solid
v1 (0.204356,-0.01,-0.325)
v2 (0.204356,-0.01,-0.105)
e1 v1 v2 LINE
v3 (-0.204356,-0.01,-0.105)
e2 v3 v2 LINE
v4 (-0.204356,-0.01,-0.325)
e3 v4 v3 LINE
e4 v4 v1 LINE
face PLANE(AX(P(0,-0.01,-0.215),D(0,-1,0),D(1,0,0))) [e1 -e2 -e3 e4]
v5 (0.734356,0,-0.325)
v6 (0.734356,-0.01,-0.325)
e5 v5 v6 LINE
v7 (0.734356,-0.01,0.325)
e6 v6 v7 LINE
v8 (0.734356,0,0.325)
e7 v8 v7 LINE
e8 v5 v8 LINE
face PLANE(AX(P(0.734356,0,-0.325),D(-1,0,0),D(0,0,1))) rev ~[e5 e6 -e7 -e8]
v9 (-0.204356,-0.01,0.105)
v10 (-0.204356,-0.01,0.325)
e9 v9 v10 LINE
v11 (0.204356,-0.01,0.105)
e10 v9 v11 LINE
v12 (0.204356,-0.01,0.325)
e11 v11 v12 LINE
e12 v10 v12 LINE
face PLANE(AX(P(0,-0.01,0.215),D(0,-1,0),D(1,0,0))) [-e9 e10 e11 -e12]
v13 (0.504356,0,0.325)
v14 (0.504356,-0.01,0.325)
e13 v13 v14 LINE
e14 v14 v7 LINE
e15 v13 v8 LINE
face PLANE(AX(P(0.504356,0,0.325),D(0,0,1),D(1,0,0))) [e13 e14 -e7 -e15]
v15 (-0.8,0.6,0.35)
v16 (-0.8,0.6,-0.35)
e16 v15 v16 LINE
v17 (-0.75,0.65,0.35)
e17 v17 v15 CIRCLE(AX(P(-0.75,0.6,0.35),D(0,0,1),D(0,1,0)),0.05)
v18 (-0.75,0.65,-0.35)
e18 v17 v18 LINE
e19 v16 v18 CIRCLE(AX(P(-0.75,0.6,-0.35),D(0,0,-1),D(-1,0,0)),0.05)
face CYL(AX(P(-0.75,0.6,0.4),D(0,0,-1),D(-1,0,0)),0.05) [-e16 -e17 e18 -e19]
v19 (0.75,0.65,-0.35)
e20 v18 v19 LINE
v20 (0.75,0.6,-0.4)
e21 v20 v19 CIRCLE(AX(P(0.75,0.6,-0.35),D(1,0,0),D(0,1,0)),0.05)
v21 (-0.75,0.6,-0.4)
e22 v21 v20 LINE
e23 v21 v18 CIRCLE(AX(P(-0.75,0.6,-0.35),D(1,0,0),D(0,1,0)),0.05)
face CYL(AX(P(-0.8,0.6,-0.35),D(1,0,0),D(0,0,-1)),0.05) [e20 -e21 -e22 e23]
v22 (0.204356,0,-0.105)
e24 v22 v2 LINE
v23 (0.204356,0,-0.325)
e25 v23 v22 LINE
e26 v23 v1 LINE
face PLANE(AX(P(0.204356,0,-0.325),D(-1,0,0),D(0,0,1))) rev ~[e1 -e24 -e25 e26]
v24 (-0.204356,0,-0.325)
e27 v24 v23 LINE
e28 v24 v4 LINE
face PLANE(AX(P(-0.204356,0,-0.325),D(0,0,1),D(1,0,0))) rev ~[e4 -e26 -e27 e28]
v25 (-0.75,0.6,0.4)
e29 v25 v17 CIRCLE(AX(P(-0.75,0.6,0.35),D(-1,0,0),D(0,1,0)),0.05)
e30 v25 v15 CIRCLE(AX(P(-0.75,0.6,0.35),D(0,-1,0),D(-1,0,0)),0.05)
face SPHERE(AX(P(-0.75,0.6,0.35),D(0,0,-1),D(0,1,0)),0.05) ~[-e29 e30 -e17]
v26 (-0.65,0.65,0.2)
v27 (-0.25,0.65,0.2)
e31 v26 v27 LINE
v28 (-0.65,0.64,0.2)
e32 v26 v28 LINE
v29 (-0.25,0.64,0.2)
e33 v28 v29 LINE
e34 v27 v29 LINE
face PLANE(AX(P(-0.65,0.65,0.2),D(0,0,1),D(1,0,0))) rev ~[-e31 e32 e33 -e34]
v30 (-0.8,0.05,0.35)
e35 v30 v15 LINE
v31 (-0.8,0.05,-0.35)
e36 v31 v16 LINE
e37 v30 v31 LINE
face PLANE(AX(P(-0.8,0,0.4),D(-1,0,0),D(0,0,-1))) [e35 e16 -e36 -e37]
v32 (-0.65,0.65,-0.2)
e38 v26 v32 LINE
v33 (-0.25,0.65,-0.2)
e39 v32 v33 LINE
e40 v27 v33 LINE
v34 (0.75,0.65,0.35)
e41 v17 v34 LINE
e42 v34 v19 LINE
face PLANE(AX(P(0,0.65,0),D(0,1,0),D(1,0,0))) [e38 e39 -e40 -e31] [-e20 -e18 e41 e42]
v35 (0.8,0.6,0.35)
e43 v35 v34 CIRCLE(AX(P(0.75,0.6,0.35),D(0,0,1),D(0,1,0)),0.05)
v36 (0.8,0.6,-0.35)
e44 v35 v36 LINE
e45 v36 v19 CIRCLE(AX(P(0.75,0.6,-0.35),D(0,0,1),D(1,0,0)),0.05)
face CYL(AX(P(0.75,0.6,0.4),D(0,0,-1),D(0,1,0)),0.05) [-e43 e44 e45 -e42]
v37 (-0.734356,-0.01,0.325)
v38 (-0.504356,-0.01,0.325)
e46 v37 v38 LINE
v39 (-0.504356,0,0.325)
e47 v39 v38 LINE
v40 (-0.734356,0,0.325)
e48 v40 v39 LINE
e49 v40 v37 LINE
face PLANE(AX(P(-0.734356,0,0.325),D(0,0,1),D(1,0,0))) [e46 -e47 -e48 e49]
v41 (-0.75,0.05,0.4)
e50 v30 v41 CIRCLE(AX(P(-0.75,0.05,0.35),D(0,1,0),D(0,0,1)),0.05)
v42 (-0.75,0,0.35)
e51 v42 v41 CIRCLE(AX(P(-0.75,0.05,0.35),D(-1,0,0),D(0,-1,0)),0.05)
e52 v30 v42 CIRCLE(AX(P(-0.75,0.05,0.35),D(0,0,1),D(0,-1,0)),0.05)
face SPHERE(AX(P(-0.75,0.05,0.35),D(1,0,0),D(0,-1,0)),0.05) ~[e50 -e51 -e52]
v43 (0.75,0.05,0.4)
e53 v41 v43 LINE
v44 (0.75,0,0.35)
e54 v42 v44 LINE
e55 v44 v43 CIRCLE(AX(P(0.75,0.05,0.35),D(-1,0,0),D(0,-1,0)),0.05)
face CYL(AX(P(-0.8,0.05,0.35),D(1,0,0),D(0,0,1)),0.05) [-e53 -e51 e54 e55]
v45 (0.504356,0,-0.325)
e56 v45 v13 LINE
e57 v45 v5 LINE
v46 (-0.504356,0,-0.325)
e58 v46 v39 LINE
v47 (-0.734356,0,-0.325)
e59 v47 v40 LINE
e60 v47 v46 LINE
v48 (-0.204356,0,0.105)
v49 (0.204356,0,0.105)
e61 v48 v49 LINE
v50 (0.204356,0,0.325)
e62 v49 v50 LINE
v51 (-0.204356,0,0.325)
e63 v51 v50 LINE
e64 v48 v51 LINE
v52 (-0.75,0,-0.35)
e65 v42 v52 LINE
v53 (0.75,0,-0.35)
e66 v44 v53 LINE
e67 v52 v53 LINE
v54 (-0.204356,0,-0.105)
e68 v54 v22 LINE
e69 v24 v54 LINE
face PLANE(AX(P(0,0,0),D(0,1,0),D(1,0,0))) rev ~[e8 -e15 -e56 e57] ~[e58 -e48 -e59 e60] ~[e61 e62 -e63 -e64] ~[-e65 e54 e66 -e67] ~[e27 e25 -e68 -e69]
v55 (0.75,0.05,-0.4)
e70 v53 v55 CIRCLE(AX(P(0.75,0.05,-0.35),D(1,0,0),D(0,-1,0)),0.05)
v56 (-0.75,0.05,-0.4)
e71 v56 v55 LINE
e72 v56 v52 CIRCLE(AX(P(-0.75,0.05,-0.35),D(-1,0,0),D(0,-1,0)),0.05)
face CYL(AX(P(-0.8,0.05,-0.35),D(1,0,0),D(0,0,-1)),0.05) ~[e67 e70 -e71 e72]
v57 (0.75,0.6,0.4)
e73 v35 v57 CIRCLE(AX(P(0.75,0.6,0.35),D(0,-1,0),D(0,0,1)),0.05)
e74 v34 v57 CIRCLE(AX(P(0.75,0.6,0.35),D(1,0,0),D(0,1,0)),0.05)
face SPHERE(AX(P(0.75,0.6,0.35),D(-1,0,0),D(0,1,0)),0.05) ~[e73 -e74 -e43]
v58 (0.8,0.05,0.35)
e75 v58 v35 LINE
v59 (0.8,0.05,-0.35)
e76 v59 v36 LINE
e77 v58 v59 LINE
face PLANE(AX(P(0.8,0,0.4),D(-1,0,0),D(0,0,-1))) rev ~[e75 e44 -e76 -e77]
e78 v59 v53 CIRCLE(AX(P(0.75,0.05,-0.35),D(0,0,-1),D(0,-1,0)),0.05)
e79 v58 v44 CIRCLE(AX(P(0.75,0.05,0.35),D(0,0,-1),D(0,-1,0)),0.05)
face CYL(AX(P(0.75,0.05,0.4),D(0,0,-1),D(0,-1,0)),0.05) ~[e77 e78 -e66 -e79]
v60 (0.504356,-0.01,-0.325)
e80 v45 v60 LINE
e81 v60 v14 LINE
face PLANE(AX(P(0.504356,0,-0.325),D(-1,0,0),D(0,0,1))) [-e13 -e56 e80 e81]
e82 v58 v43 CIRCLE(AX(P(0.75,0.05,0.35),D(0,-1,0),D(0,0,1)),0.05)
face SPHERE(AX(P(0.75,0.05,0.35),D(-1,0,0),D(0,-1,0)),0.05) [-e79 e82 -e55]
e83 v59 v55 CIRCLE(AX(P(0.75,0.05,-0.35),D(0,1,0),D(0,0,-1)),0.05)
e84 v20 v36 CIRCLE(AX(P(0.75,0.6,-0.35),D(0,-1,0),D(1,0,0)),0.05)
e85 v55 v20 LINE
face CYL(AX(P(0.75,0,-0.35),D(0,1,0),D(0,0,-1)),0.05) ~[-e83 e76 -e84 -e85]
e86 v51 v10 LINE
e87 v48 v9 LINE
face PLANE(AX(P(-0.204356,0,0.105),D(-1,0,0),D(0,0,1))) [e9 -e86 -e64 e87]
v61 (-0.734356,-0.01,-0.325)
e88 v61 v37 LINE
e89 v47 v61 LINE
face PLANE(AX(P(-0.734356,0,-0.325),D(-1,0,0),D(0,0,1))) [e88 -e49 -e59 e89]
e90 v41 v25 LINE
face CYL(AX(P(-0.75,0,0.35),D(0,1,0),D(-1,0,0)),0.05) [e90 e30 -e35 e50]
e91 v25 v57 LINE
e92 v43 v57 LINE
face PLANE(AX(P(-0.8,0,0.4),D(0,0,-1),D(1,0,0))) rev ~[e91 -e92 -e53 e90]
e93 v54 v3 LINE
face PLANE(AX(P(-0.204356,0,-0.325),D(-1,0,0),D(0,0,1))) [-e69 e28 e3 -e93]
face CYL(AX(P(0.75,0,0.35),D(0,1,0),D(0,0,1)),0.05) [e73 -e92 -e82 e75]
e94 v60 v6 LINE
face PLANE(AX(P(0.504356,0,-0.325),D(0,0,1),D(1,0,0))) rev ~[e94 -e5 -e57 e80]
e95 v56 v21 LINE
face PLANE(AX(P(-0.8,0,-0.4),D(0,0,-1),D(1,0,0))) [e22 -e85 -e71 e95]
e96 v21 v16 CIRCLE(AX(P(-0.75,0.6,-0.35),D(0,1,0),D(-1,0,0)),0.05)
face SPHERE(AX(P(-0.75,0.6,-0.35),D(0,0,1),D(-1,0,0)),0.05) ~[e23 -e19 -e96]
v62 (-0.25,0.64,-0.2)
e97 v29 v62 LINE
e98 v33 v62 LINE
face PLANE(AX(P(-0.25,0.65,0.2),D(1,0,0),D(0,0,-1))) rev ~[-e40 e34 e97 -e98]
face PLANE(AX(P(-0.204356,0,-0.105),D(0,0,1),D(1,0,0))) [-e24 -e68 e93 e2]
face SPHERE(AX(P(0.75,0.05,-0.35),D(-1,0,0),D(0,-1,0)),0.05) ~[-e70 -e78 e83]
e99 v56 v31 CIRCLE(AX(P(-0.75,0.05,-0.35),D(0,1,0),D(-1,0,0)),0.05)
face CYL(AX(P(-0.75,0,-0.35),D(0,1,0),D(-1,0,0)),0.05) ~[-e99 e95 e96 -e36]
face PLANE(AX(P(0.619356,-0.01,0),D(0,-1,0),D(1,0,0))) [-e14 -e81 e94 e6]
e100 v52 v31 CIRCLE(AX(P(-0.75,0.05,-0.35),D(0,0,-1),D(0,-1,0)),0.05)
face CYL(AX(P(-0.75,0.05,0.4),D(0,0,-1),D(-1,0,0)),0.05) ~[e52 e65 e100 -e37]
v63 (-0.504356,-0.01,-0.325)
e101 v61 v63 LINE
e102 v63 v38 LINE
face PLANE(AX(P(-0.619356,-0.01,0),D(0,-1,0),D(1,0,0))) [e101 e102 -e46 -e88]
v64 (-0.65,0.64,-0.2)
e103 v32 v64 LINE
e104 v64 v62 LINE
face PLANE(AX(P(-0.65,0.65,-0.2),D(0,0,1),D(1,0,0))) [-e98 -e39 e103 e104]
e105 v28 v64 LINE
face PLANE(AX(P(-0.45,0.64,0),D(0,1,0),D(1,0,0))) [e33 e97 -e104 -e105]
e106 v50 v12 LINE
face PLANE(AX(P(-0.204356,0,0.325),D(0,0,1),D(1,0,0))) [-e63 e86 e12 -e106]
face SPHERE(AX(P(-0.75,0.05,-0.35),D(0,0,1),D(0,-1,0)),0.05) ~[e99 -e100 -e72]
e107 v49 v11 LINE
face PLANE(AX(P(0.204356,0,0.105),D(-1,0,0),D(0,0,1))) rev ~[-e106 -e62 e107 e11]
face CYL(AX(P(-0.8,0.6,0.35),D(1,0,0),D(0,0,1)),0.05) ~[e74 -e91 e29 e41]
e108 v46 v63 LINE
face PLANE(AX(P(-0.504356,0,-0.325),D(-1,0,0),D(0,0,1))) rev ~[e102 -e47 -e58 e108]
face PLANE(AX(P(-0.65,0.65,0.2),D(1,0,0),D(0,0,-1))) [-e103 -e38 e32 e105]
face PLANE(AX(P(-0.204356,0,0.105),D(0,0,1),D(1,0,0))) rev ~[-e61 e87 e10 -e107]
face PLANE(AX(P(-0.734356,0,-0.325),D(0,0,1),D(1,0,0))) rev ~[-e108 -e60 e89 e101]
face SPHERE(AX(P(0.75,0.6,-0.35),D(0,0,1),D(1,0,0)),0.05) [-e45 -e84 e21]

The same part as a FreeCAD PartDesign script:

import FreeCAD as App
import Part
import Sketcher
Q = App.Units.Quantity


def edges_at(feature, points):
    """Names of the edges that pass closest to the given points."""
    edges = feature.Shape.Edges
    near = lambda p: min(range(len(edges)), key=lambda i: edges[i].distToShape(Part.Vertex(*p))[0])
    return sorted({f"Edge{near(p) + 1}" for p in points})


def add_polygon(sketch, points):
    """Adds a closed chain of lines whose ends are joined by coincident constraints."""
    first, n = sketch.GeometryCount, len(points)
    for a, b in zip(points, points[1:] + points[:1]):
        sketch.addGeometry(Part.LineSegment(App.Vector(*a, 0), App.Vector(*b, 0)), False)
    for i in range(n):
        sketch.addConstraint(Sketcher.Constraint("Coincident", first + i, 2, first + (i + 1) % n, 1))

doc = App.newDocument("Part")
body = doc.addObject("PartDesign::Body", "Body")

# Sketch on XZ plane
sketch1 = body.newObject("Sketcher::SketchObject", "Sketch")
sketch1.AttachmentSupport = (doc.getObject("XZ_Plane"), [""])
sketch1.MapMode = "FlatFace"
add_polygon(sketch1, [(-0.8, -0.4), (-0.8, 0.4), (0.8, 0.4), (0.8, -0.4)])  # lines 0-3
sketch1.addConstraint([
    Sketcher.Constraint("Vertical", 0),
    Sketcher.Constraint("Horizontal", 1),
    Sketcher.Constraint("Vertical", 2),
    Sketcher.Constraint("Horizontal", 3),
    Sketcher.Constraint("Symmetric", 0, 2, 2, 2, -1, 1),
    Sketcher.Constraint("DistanceX", 1, 1, 1, 2, Q("1.6 mm")),
    Sketcher.Constraint("DistanceY", 0, 1, 0, 2, Q("0.8 mm")),
])
pad1 = body.newObject("PartDesign::Pad", "Pad")
pad1.Profile = sketch1
pad1.Length = 0.65
pad1.Reversed = True

# Sketch on XZ plane
sketch2 = body.newObject("Sketcher::SketchObject", "Sketch001")
sketch2.AttachmentSupport = (doc.getObject("XZ_Plane"), [""])
sketch2.MapMode = "FlatFace"
add_polygon(sketch2, [(-0.734356, 0.325), (-0.734356, -0.325), (-0.504356, -0.325), (-0.504356, 0.325)])  # lines 0-3
add_polygon(sketch2, [(0.504356, 0.325), (0.504356, -0.325), (0.734356, -0.325), (0.734356, 0.325)])  # lines 4-7
add_polygon(sketch2, [(-0.204356, -0.105), (-0.204356, -0.325), (0.204356, -0.325), (0.204356, -0.105)])  # lines 8-11
add_polygon(sketch2, [(-0.204356, 0.325), (-0.204356, 0.105), (0.204356, 0.105), (0.204356, 0.325)])  # lines 12-15
sketch2.addConstraint([
    Sketcher.Constraint("Vertical", 0),
    Sketcher.Constraint("Horizontal", 1),
    Sketcher.Constraint("Vertical", 2),
    Sketcher.Constraint("Horizontal", 3),
    Sketcher.Constraint("Vertical", 4),
    Sketcher.Constraint("Horizontal", 5),
    Sketcher.Constraint("Vertical", 6),
    Sketcher.Constraint("Horizontal", 7),
    Sketcher.Constraint("Vertical", 8),
    Sketcher.Constraint("Horizontal", 9),
    Sketcher.Constraint("Vertical", 10),
    Sketcher.Constraint("Horizontal", 11),
    Sketcher.Constraint("Vertical", 12),
    Sketcher.Constraint("Horizontal", 13),
    Sketcher.Constraint("Vertical", 14),
    Sketcher.Constraint("Horizontal", 15),
    Sketcher.Constraint("Symmetric", 2, 2, 4, 2, -1, 1),
    Sketcher.Constraint("Symmetric", 0, 2, 6, 2, -1, 1),
    Sketcher.Constraint("Symmetric", 10, 2, 12, 2, -1, 1),
    Sketcher.Constraint("Symmetric", 8, 2, 14, 2, -1, 1),
    Sketcher.Constraint("Horizontal", 1, 2, 4, 2),
    Sketcher.Constraint("Horizontal", 5, 2, 8, 2),
    Sketcher.Constraint("Vertical", 11, 2, 12, 2),
    Sketcher.Constraint("DistanceX", 1, 1, 1, 2, Q("0.23 mm")),
    Sketcher.Constraint("DistanceY", 0, 2, 0, 1, Q("0.65 mm")),
    Sketcher.Constraint("DistanceY", 8, 2, 8, 1, Q("0.22 mm")),
    Sketcher.Constraint("DistanceX", 1, 2, 8, 2, Q("0.3 mm")),
    Sketcher.Constraint("DistanceX", 9, 1, 9, 2, Q("0.408711 mm")),
])
pad2 = body.newObject("PartDesign::Pad", "Pad001")
pad2.Profile = sketch2
pad2.Length = 0.01
doc.recompute()

fillet = body.newObject("PartDesign::Fillet", "Fillet")
fillet.Base = (pad2, edges_at(pad2, [
    (-0.8, 0.65, 0),
    (0, 0.65, 0.4),
    (0.8, 0.65, 0),
    (0, 0, 0.4),
    (-0.8, 0, 0),
    (0, 0, -0.4),
    (0.8, 0, 0),
    (0.8, 0.325, 0.4),
    (-0.8, 0.325, 0.4),
    (-0.8, 0.325, -0.4),
    (0.8, 0.325, -0.4),
    (0, 0.65, -0.4),
]))
fillet.Radius = 0.05

# Sketch on XZ plane
sketch3 = body.newObject("Sketcher::SketchObject", "Sketch002")
sketch3.AttachmentSupport = (doc.getObject("XZ_Plane"), [""])
sketch3.MapMode = "FlatFace"
sketch3.AttachmentOffset = App.Placement(App.Vector(0, 0, -0.65), App.Rotation())
add_polygon(sketch3, [(-0.65, -0.2), (-0.65, 0.2), (-0.25, 0.2), (-0.25, -0.2)])  # lines 0-3
sketch3.addConstraint([
    Sketcher.Constraint("Vertical", 0),
    Sketcher.Constraint("Horizontal", 1),
    Sketcher.Constraint("Vertical", 2),
    Sketcher.Constraint("Horizontal", 3),
    Sketcher.Constraint("Equal", 3, 0),
    Sketcher.Constraint("DistanceX", 1, 1, 1, 2, Q("0.4 mm")),
    Sketcher.Constraint("DistanceY", -1, 1, 0, 2, Q("0.2 mm")),
    Sketcher.Constraint("DistanceX", 0, 2, -1, 1, Q("0.65 mm")),
])
pocket1 = body.newObject("PartDesign::Pocket", "Pocket")
pocket1.Profile = sketch3
pocket1.Length = 0.01
pocket1.Reversed = True

doc.recompute()
